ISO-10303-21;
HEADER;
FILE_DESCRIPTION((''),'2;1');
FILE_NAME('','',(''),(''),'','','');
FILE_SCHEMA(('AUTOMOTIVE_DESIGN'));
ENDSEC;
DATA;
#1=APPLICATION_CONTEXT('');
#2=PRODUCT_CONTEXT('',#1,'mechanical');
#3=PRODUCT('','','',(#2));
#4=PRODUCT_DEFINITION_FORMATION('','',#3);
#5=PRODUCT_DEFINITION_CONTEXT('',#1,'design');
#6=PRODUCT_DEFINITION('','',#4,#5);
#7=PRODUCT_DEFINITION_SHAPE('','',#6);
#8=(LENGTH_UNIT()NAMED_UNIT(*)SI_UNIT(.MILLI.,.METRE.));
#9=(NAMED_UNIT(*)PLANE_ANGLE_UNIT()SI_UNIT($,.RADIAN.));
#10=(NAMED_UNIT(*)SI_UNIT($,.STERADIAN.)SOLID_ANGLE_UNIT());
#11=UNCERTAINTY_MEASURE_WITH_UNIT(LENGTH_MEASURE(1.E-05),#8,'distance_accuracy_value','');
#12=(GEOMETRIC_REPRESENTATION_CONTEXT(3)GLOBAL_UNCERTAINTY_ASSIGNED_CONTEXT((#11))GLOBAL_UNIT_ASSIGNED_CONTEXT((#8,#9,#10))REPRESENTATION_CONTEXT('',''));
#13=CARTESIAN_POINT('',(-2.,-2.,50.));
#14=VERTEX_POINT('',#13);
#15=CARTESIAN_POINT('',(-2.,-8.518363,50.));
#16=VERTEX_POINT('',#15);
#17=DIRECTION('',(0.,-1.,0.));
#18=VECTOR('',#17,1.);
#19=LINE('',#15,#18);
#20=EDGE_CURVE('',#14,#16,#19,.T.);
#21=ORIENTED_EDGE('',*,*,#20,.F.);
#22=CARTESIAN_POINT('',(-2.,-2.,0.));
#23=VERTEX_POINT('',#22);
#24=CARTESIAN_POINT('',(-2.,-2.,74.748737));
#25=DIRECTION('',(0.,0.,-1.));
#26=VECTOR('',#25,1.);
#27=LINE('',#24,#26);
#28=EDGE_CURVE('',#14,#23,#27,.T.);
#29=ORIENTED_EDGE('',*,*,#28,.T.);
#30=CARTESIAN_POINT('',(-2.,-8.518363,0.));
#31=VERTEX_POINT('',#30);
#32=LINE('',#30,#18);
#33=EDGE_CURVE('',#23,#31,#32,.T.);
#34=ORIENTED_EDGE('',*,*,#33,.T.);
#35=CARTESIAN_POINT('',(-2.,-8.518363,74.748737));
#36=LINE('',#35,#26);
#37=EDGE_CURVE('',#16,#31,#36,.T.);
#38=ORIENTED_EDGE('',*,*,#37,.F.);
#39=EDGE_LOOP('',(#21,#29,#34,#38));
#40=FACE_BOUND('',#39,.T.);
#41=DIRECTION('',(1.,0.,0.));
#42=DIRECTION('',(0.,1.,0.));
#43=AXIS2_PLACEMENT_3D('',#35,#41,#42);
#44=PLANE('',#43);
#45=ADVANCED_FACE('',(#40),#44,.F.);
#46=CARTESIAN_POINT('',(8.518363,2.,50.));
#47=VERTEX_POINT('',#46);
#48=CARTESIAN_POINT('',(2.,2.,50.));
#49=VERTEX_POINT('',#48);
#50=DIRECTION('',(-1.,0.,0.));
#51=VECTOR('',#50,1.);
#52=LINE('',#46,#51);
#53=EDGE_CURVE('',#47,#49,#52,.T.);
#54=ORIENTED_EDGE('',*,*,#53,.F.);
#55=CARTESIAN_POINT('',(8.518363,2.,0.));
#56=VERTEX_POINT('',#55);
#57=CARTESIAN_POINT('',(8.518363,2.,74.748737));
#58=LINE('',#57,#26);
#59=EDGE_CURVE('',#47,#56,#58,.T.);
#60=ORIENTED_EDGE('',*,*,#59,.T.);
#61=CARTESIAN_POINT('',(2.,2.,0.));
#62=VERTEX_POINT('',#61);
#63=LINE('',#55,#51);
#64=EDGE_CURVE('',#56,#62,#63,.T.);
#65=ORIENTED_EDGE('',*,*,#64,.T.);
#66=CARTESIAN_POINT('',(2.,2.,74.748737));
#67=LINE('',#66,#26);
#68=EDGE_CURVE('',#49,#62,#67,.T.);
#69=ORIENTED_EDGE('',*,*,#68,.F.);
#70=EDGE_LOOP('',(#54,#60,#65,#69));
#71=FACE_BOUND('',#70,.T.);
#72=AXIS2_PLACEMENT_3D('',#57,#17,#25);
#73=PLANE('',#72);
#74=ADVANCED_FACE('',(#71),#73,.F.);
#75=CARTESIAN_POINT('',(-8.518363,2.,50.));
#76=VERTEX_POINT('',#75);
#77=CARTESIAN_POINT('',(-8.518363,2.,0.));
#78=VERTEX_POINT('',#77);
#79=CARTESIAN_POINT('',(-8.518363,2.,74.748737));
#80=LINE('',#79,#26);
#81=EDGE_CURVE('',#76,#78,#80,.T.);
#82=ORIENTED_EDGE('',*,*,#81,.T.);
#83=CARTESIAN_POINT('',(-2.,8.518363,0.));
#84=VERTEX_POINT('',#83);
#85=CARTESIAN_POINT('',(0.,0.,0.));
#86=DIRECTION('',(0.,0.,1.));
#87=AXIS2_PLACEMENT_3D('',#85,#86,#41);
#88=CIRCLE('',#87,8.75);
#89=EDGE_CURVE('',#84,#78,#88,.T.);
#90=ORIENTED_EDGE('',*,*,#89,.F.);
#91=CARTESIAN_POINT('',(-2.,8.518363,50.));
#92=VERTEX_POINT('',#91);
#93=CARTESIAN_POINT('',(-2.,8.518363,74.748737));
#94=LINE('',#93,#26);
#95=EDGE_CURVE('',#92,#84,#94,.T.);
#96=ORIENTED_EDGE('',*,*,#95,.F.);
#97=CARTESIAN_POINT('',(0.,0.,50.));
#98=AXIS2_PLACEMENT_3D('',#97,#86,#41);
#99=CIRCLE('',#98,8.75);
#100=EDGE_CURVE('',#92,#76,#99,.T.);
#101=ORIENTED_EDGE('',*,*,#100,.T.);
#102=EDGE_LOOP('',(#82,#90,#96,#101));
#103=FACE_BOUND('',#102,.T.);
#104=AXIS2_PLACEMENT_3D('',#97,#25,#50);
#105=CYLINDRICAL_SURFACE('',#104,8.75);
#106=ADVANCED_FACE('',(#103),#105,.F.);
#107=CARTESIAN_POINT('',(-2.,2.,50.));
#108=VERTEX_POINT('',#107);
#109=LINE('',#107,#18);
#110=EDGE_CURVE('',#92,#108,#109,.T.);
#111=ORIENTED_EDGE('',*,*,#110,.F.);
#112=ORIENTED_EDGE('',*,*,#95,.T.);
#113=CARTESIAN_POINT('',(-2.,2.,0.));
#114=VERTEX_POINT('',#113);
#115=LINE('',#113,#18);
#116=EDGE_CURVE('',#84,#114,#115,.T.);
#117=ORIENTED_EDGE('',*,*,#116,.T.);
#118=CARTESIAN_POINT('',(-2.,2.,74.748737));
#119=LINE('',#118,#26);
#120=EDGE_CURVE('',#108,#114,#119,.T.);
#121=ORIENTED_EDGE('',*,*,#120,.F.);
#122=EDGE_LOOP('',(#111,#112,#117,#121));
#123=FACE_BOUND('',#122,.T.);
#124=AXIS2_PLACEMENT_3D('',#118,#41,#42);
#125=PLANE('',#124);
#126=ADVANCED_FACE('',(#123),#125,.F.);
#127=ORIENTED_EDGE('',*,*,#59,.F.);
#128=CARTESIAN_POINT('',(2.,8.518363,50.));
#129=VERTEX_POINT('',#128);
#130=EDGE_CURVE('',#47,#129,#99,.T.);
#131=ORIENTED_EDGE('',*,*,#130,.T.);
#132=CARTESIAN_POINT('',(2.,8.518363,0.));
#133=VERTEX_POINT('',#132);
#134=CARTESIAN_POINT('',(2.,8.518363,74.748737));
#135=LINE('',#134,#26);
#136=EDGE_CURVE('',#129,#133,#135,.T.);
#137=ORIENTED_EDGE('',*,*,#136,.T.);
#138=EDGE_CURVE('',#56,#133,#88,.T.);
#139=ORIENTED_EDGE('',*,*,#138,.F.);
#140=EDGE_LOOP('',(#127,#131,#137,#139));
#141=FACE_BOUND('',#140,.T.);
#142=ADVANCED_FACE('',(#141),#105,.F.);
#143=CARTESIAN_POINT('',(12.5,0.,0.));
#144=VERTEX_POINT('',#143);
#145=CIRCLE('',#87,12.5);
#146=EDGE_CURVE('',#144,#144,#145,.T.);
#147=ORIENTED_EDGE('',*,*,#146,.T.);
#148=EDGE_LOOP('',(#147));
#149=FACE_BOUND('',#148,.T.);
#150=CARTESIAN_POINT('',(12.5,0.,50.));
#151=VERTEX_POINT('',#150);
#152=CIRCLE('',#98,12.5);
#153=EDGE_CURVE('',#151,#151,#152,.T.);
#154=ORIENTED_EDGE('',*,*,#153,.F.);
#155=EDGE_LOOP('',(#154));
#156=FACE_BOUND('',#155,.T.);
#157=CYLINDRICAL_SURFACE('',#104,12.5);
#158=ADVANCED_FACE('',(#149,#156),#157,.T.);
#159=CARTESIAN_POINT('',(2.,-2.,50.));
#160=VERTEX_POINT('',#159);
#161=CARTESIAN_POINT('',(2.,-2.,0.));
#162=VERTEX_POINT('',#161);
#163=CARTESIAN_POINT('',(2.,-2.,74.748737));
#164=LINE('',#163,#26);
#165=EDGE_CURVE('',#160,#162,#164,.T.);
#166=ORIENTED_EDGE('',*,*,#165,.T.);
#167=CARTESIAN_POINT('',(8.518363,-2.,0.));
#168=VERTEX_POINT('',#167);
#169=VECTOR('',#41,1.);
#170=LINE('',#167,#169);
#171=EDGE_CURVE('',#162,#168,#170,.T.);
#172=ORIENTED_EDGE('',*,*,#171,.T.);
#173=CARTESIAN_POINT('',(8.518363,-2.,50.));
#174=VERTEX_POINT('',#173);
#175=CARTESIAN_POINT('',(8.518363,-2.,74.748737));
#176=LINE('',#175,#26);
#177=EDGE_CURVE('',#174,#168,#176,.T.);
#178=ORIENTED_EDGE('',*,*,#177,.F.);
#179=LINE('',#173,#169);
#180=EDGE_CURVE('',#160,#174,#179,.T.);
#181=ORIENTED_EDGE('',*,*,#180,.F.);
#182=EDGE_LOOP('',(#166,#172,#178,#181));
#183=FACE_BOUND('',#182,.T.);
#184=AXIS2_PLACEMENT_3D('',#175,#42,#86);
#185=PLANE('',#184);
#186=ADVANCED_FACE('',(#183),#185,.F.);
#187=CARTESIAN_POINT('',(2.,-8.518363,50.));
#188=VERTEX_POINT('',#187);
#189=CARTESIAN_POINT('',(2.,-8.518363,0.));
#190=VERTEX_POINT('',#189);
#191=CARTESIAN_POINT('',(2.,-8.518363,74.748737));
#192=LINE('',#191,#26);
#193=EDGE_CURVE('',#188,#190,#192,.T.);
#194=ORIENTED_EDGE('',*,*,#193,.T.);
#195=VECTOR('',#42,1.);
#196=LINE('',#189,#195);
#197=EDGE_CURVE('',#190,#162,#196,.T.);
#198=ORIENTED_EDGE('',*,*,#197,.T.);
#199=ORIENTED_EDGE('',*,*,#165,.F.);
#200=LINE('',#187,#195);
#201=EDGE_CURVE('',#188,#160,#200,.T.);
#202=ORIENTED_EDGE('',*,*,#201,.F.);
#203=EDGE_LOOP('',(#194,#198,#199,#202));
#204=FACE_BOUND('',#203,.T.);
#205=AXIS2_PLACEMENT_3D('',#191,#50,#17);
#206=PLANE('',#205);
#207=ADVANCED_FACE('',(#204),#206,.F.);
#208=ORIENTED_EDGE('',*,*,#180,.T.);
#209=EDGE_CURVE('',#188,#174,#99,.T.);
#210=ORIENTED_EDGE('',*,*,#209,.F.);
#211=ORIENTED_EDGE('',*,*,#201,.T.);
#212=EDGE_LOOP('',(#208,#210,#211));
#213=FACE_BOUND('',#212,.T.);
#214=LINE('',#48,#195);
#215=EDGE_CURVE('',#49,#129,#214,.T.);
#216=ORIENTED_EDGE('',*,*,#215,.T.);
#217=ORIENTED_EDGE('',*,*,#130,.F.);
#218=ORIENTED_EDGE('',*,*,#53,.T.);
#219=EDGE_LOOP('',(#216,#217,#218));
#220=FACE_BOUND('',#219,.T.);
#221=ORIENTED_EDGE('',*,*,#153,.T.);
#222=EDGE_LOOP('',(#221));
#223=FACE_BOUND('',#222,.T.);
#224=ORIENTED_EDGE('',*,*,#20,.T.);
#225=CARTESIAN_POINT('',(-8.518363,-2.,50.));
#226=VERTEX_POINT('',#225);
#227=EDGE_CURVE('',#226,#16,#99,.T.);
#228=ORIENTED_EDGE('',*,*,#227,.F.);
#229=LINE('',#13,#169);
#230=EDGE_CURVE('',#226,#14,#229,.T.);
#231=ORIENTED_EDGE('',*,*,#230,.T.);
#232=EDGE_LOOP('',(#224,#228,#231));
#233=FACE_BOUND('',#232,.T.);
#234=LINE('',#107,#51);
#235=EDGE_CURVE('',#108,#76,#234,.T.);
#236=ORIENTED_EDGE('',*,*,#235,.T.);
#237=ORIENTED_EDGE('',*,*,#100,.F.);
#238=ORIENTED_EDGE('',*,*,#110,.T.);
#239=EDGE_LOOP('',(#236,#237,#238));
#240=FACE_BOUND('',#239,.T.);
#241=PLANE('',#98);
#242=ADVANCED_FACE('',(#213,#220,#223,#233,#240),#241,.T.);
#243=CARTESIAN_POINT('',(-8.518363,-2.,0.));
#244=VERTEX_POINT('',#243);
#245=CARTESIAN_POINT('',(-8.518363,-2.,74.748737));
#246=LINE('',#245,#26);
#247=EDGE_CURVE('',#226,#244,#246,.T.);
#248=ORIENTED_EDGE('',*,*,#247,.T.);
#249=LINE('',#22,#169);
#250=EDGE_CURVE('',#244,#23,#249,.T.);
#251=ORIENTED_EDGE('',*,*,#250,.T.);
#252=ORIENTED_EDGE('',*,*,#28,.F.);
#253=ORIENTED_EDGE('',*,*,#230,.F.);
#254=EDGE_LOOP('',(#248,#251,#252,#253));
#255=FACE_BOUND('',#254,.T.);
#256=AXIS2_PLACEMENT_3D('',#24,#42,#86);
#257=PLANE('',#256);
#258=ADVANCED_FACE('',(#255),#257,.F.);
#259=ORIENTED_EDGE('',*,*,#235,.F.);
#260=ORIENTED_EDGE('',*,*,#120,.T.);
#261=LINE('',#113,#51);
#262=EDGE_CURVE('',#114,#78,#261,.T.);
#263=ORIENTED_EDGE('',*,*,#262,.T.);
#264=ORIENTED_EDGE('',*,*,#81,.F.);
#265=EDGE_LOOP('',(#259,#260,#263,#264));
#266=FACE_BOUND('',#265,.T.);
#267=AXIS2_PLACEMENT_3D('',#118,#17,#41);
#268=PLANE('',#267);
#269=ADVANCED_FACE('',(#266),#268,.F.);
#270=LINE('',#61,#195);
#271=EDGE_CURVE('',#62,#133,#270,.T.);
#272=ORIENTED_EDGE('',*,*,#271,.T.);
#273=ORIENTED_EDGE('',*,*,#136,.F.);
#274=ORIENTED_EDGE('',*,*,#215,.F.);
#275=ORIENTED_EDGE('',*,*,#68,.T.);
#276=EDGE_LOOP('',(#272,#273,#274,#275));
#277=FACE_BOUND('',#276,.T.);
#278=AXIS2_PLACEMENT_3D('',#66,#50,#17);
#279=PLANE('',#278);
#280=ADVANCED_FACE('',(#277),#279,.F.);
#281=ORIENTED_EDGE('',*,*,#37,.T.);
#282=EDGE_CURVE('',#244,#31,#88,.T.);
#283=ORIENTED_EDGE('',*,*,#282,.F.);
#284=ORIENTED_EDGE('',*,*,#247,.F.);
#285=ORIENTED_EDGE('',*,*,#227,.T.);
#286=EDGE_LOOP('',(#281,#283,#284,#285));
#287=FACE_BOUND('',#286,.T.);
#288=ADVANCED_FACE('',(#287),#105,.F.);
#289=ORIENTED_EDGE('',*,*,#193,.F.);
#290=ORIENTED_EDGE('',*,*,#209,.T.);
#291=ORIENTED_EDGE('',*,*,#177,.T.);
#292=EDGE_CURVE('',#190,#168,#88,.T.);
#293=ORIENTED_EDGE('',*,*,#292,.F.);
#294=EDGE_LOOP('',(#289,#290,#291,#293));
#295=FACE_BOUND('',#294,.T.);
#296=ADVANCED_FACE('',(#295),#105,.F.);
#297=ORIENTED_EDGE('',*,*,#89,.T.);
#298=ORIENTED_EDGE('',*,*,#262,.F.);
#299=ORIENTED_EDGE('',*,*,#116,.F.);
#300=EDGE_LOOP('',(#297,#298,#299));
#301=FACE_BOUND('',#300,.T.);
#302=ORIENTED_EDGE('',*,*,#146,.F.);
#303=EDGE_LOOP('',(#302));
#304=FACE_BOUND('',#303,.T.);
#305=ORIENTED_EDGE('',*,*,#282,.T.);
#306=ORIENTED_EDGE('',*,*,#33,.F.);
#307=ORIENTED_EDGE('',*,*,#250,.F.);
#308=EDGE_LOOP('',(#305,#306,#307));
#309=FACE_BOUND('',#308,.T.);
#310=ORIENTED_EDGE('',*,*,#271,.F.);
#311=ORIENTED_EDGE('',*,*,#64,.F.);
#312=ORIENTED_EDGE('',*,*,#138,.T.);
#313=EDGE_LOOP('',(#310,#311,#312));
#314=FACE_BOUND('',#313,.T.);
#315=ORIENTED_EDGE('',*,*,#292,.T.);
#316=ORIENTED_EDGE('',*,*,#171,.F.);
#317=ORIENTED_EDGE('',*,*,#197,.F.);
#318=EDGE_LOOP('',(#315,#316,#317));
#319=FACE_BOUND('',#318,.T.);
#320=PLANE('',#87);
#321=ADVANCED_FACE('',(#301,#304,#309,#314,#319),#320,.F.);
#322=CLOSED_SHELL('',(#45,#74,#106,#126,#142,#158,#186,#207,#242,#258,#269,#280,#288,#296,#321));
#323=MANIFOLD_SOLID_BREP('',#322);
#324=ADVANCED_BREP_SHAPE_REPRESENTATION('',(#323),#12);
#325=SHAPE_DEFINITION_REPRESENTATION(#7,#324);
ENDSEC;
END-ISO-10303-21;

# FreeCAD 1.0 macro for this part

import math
import FreeCAD as App
import Part
import Sketcher

V = App.Vector
Q = App.Units.Quantity

doc = App.newDocument("Part")
body = doc.addObject("PartDesign::Body", "Body")

sketch1 = doc.addObject("Sketcher::SketchObject", "Sketch")
body.addObject(sketch1)
sketch1.AttachmentSupport = (doc.XY_Plane, [""])
sketch1.MapMode = "FlatFace"
sketch1.addGeometry([
    Part.Circle(V(0, 0, 0), V(0, 0, 1), 12.5),
    Part.Circle(V(0, 0, 0), V(0, 0, 1), 8.75),
], False)
sketch1.addConstraint([
    Sketcher.Constraint("Coincident", 0, 3, -1, 1),
    Sketcher.Constraint("Coincident", 1, 3, -1, 1),
    Sketcher.Constraint("Diameter", 0, Q("25 mm")),
    Sketcher.Constraint("Diameter", 1, Q("17.5 mm")),
])
pad1 = doc.addObject("PartDesign::Pad", "Pad")
body.addObject(pad1)
pad1.Profile = sketch1
pad1.Length = 50

sketch2 = doc.addObject("Sketcher::SketchObject", "Sketch001")
body.addObject(sketch2)
sketch2.AttachmentSupport = (doc.XY_Plane, [""])
sketch2.MapMode = "FlatFace"
sketch2.addGeometry([
    Part.LineSegment(V(-2, -2, 0), V(-2, -8.518363, 0)),
    Part.ArcOfCircle(Part.Circle(V(0, 0, 0), V(0, 0, 1), 8.75), math.radians(-103.21298), math.radians(-76.78702)),
    Part.LineSegment(V(2, -8.518363, 0), V(2, -2, 0)),
    Part.LineSegment(V(2, -2, 0), V(8.518363, -2, 0)),
    Part.ArcOfCircle(Part.Circle(V(0, 0, 0), V(0, 0, 1), 8.75), math.radians(-13.21298), math.radians(13.21298)),
    Part.LineSegment(V(8.518363, 2, 0), V(2, 2, 0)),
    Part.LineSegment(V(2, 2, 0), V(2, 8.518363, 0)),
    Part.ArcOfCircle(Part.Circle(V(0, 0, 0), V(0, 0, 1), 8.75), math.radians(76.78702), math.radians(103.21298)),
    Part.LineSegment(V(-2, 8.518363, 0), V(-2, 2, 0)),
    Part.LineSegment(V(-2, 2, 0), V(-8.518363, 2, 0)),
    Part.ArcOfCircle(Part.Circle(V(0, 0, 0), V(0, 0, 1), 8.75), math.radians(166.78702), math.radians(193.21298)),
    Part.LineSegment(V(-8.518363, -2, 0), V(-2, -2, 0)),
], False)
sketch2.addConstraint([
    Sketcher.Constraint("Coincident", 0, 2, 1, 1),
    Sketcher.Constraint("Coincident", 1, 2, 2, 1),
    Sketcher.Constraint("Coincident", 2, 2, 3, 1),
    Sketcher.Constraint("Coincident", 3, 2, 4, 1),
    Sketcher.Constraint("Coincident", 4, 2, 5, 1),
    Sketcher.Constraint("Coincident", 5, 2, 6, 1),
    Sketcher.Constraint("Coincident", 6, 2, 7, 1),
    Sketcher.Constraint("Coincident", 7, 2, 8, 1),
    Sketcher.Constraint("Coincident", 8, 2, 9, 1),
    Sketcher.Constraint("Coincident", 9, 2, 10, 1),
    Sketcher.Constraint("Coincident", 10, 2, 11, 1),
    Sketcher.Constraint("Coincident", 11, 2, 0, 1),
    Sketcher.Constraint("Vertical", 0),
    Sketcher.Constraint("Vertical", 2),
    Sketcher.Constraint("Horizontal", 3),
    Sketcher.Constraint("Horizontal", 5),
    Sketcher.Constraint("Vertical", 6),
    Sketcher.Constraint("Vertical", 8),
    Sketcher.Constraint("Horizontal", 9),
    Sketcher.Constraint("Horizontal", 11),
    Sketcher.Constraint("Coincident", 1, 3, -1, 1),
    Sketcher.Constraint("Coincident", 4, 3, -1, 1),
    Sketcher.Constraint("Coincident", 7, 3, -1, 1),
    Sketcher.Constraint("Coincident", 10, 3, -1, 1),
    Sketcher.Constraint("Equal", 1, 4),
    Sketcher.Constraint("Equal", 4, 7),
    Sketcher.Constraint("Equal", 7, 10),
    Sketcher.Constraint("Symmetric", 2, 2, 8, 2, -1, 1),
    Sketcher.Constraint("Symmetric", 5, 2, 11, 2, -1, 1),
    Sketcher.Constraint("Symmetric", 5, 2, 8, 2, -2),
    Sketcher.Constraint("Equal", 11, 0),
    Sketcher.Constraint("Radius", 1, Q("8.75 mm")),
    Sketcher.Constraint("DistanceX", 0, 2, -1, 1, Q("2 mm")),
])
pad2 = doc.addObject("PartDesign::Pad", "Pad001")
body.addObject(pad2)
pad2.Profile = sketch2
pad2.Length = 50

doc.recompute()
